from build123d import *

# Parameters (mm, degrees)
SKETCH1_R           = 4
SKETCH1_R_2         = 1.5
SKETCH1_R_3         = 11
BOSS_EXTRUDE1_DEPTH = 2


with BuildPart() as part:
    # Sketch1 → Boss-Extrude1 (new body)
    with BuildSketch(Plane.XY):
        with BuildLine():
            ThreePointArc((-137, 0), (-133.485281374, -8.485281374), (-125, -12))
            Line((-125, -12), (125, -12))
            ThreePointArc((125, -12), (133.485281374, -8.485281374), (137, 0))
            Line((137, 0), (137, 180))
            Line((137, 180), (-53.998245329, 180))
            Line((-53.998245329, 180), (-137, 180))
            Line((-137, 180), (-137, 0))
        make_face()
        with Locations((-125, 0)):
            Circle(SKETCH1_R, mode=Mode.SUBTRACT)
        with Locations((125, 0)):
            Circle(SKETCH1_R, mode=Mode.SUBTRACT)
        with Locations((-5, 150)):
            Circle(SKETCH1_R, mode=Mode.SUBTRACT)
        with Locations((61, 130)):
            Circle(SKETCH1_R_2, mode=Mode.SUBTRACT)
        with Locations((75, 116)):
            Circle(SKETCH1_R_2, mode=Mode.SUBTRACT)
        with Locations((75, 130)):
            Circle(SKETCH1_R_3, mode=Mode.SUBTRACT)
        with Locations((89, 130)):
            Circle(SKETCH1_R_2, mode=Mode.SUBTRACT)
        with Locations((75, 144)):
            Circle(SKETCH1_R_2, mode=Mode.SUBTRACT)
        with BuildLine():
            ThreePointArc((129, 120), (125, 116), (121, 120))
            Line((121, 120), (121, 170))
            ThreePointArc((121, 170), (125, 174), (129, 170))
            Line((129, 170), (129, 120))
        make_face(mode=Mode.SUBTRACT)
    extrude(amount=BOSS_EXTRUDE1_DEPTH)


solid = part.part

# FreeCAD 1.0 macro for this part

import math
import FreeCAD as App
import Part
import Sketcher

doc = App.newDocument("Part")
params = doc.addObject("Spreadsheet::Sheet", "Params")
for row, (alias, value) in enumerate([
    ("sketch1_diameter", "8 mm"),
    ("sketch1_diameter2", "3 mm"),
    ("sketch1_diameter3", "22 mm"),
    ("sketch1_radius", "12 mm"),
    ("sketch1_width", "250 mm"),
    ("pad1_length", "2 mm"),
], start=1):
    params.set(f"A{row}", alias)
    params.set(f"B{row}", "=" + value)
    params.setAlias(f"B{row}", alias)

body = doc.addObject("PartDesign::Body", "Body")

# Sketch on XY plane
sketch1 = doc.addObject("Sketcher::SketchObject", "Sketch")
body.addObject(sketch1)
sketch1.AttachmentSupport = (doc.XY_Plane, [""])
sketch1.MapMode = "FlatFace"
sketch1.addGeometry(Part.ArcOfCircle(Part.Circle(App.Vector(-125, 0, 0), App.Vector(0, 0, 1), 12), math.radians(-180), math.radians(-90)), False)
sketch1.addGeometry(Part.LineSegment(App.Vector(-125, -12, 0), App.Vector(125, -12, 0)), False)
sketch1.addGeometry(Part.ArcOfCircle(Part.Circle(App.Vector(125, 0, 0), App.Vector(0, 0, 1), 12), math.radians(-90), math.radians(0)), False)
sketch1.addGeometry(Part.LineSegment(App.Vector(137, 0, 0), App.Vector(137, 180, 0)), False)
sketch1.addGeometry(Part.LineSegment(App.Vector(137, 180, 0), App.Vector(-137, 180, 0)), False)
sketch1.addGeometry(Part.LineSegment(App.Vector(-137, 180, 0), App.Vector(-137, 0, 0)), False)
sketch1.addGeometry(Part.Circle(App.Vector(-125, 0, 0), App.Vector(0, 0, 1), 4), False)
sketch1.addGeometry(Part.Circle(App.Vector(125, 0, 0), App.Vector(0, 0, 1), 4), False)
sketch1.addGeometry(Part.Circle(App.Vector(-5, 150, 0), App.Vector(0, 0, 1), 4), False)
sketch1.addGeometry(Part.Circle(App.Vector(75, 116, 0), App.Vector(0, 0, 1), 1.5), False)
sketch1.addGeometry(Part.Circle(App.Vector(61, 130, 0), App.Vector(0, 0, 1), 1.5), False)
sketch1.addGeometry(Part.Circle(App.Vector(75, 130, 0), App.Vector(0, 0, 1), 11), False)
sketch1.addGeometry(Part.Circle(App.Vector(89, 130, 0), App.Vector(0, 0, 1), 1.5), False)
sketch1.addGeometry(Part.Circle(App.Vector(75, 144, 0), App.Vector(0, 0, 1), 1.5), False)
sketch1.addGeometry(Part.LineSegment(App.Vector(129, 170, 0), App.Vector(129, 120, 0)), False)
sketch1.addGeometry(Part.ArcOfCircle(Part.Circle(App.Vector(125, 120, 0), App.Vector(0, 0, 1), 4), math.radians(180), math.radians(360)), False)
sketch1.addGeometry(Part.LineSegment(App.Vector(121, 120, 0), App.Vector(121, 170, 0)), False)
sketch1.addGeometry(Part.ArcOfCircle(Part.Circle(App.Vector(125, 170, 0), App.Vector(0, 0, 1), 4), math.radians(0), math.radians(180)), False)
sketch1.addConstraint(Sketcher.Constraint("Tangent", 0, 2, 1, 1))
sketch1.addConstraint(Sketcher.Constraint("Tangent", 1, 2, 2, 1))
sketch1.addConstraint(Sketcher.Constraint("Tangent", 2, 2, 3, 1))
sketch1.addConstraint(Sketcher.Constraint("Coincident", 3, 2, 4, 1))
sketch1.addConstraint(Sketcher.Constraint("Coincident", 4, 2, 5, 1))
sketch1.addConstraint(Sketcher.Constraint("Tangent", 5, 2, 0, 1))
sketch1.addConstraint(Sketcher.Constraint("Tangent", 14, 2, 15, 2))
sketch1.addConstraint(Sketcher.Constraint("Tangent", 15, 1, 16, 1))
sketch1.addConstraint(Sketcher.Constraint("Tangent", 16, 2, 17, 2))
sketch1.addConstraint(Sketcher.Constraint("Tangent", 17, 1, 14, 1))
sketch1.addConstraint(Sketcher.Constraint("Horizontal", 1))
sketch1.addConstraint(Sketcher.Constraint("Vertical", 3))
sketch1.addConstraint(Sketcher.Constraint("Horizontal", 4))
sketch1.addConstraint(Sketcher.Constraint("Vertical", 5))
sketch1.addConstraint(Sketcher.Constraint("Vertical", 14))
sketch1.addConstraint(Sketcher.Constraint("Vertical", 16))
sketch1.addConstraint(Sketcher.Constraint("Coincident", 6, 3, 0, 3))
sketch1.addConstraint(Sketcher.Constraint("Coincident", 7, 3, 2, 3))
sketch1.addConstraint(Sketcher.Constraint("Equal", 0, 2))
sketch1.addConstraint(Sketcher.Constraint("Equal", 6, 7))
sketch1.addConstraint(Sketcher.Constraint("Equal", 7, 8))
sketch1.addConstraint(Sketcher.Constraint("Equal", 9, 10))
sketch1.addConstraint(Sketcher.Constraint("Equal", 10, 12))
sketch1.addConstraint(Sketcher.Constraint("Equal", 12, 13))
sketch1.addConstraint(Sketcher.Constraint("Equal", 8, 15))
sketch1.addConstraint(Sketcher.Constraint("Symmetric", 0, 3, 2, 3, -1, 1))
sketch1.addConstraint(Sketcher.Constraint("Horizontal", 10, 3, 11, 3))
sketch1.addConstraint(Sketcher.Constraint("Horizontal", 11, 3, 12, 3))
sketch1.addConstraint(Sketcher.Constraint("Vertical", 9, 3, 11, 3))
sketch1.addConstraint(Sketcher.Constraint("Vertical", 11, 3, 13, 3))
sketch1.addConstraint(Sketcher.Constraint("Vertical", 7, 3, 15, 3))
sketch1.addConstraint(Sketcher.Constraint("Diameter", 6, 8.0))
sketch1.addConstraint(Sketcher.Constraint("Diameter", 9, 3.0))
sketch1.addConstraint(Sketcher.Constraint("Diameter", 11, 22.0))
sketch1.addConstraint(Sketcher.Constraint("Radius", 0, 12.0))
sketch1.addConstraint(Sketcher.Constraint("DistanceX", 1, 1, 1, 2, 250.0))
sketch1.addConstraint(Sketcher.Constraint("DistanceY", 3, 1, 3, 2, 180.0))
sketch1.addConstraint(Sketcher.Constraint("DistanceY", 14, 2, 14, 1, 50.0))
sketch1.addConstraint(Sketcher.Constraint("DistanceX", 8, 3, -1, 1, 5.0))
sketch1.addConstraint(Sketcher.Constraint("DistanceY", -1, 1, 8, 3, 150.0))
sketch1.addConstraint(Sketcher.Constraint("DistanceX", -1, 1, 9, 3, 75.0))
sketch1.addConstraint(Sketcher.Constraint("DistanceY", -1, 1, 9, 3, 116.0))
sketch1.addConstraint(Sketcher.Constraint("DistanceX", -1, 1, 10, 3, 61.0))
sketch1.addConstraint(Sketcher.Constraint("DistanceY", -1, 1, 10, 3, 130.0))
sketch1.addConstraint(Sketcher.Constraint("DistanceX", -1, 1, 12, 3, 89.0))
sketch1.addConstraint(Sketcher.Constraint("DistanceY", -1, 1, 13, 3, 144.0))
sketch1.addConstraint(Sketcher.Constraint("DistanceY", -1, 1, 15, 3, 120.0))
sketch1.setExpression("Constraints[31]", "Params.sketch1_diameter")
sketch1.setExpression("Constraints[32]", "Params.sketch1_diameter2")
sketch1.setExpression("Constraints[33]", "Params.sketch1_diameter3")
sketch1.setExpression("Constraints[34]", "Params.sketch1_radius")
sketch1.setExpression("Constraints[35]", "Params.sketch1_width")
pad1 = doc.addObject("PartDesign::Pad", "Pad")
body.addObject(pad1)
pad1.Profile = sketch1
pad1.setExpression("Length", "Params.pad1_length")

doc.recompute()
